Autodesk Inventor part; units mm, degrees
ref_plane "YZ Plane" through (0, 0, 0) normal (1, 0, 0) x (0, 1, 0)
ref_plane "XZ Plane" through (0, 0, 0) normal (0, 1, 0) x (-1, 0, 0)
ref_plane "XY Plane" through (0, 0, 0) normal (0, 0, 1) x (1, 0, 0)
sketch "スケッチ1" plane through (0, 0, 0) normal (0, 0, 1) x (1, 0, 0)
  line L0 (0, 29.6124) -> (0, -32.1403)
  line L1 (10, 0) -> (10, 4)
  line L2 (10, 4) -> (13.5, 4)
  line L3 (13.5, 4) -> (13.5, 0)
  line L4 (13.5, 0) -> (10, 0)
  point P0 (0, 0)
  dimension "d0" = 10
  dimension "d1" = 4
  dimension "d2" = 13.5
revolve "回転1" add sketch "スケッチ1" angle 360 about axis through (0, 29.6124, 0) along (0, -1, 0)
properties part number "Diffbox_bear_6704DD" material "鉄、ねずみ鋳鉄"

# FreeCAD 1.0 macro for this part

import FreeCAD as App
import Part
import Sketcher

doc = App.newDocument("Part")
params = doc.addObject("Spreadsheet::Sheet", "Params")
for row, (alias, value) in enumerate([
    ("sketch1_height", "4 mm"),
    ("revolution_angle", "360 deg"),
], start=1):
    params.set(f"A{row}", alias)
    params.set(f"B{row}", "=" + value)
    params.setAlias(f"B{row}", alias)

body = doc.addObject("PartDesign::Body", "Body")

# Sketch on XY plane
sketch1 = body.newObject("Sketcher::SketchObject", "Sketch")
sketch1.AttachmentSupport = (doc.getObject("XY_Plane"), [""])
sketch1.MapMode = "FlatFace"
sketch1.addGeometry([
    Part.LineSegment(App.Vector(10, 4, 0), App.Vector(10, 0, 0)),
    Part.LineSegment(App.Vector(10, 0, 0), App.Vector(13.5, 0, 0)),
    Part.LineSegment(App.Vector(13.5, 0, 0), App.Vector(13.5, 4, 0)),
    Part.LineSegment(App.Vector(13.5, 4, 0), App.Vector(10, 4, 0)),
], False)
sketch1.addConstraint([
    Sketcher.Constraint("Coincident", 0, 2, 1, 1),
    Sketcher.Constraint("Coincident", 1, 2, 2, 1),
    Sketcher.Constraint("Coincident", 2, 2, 3, 1),
    Sketcher.Constraint("Coincident", 3, 2, 0, 1),
    Sketcher.Constraint("Vertical", 0),
    Sketcher.Constraint("Horizontal", 1),
    Sketcher.Constraint("Vertical", 2),
    Sketcher.Constraint("Horizontal", 3),
    Sketcher.Constraint("PointOnObject", 0, 2, -1),
    Sketcher.Constraint("DistanceY", 0, 2, 0, 1, 4.0),
    Sketcher.Constraint("DistanceX", -1, 1, 0, 2, 10.0),
    Sketcher.Constraint("DistanceX", -1, 1, 1, 2, 13.5),
])
sketch1.setExpression("Constraints[9]", "Params.sketch1_height")
revolution = body.newObject("PartDesign::Revolution", "Revolution")
revolution.Profile = sketch1
revolution.ReferenceAxis = (sketch1, ["V_Axis"])
revolution.setExpression("Angle", "Params.revolution_angle")

doc.recompute()
